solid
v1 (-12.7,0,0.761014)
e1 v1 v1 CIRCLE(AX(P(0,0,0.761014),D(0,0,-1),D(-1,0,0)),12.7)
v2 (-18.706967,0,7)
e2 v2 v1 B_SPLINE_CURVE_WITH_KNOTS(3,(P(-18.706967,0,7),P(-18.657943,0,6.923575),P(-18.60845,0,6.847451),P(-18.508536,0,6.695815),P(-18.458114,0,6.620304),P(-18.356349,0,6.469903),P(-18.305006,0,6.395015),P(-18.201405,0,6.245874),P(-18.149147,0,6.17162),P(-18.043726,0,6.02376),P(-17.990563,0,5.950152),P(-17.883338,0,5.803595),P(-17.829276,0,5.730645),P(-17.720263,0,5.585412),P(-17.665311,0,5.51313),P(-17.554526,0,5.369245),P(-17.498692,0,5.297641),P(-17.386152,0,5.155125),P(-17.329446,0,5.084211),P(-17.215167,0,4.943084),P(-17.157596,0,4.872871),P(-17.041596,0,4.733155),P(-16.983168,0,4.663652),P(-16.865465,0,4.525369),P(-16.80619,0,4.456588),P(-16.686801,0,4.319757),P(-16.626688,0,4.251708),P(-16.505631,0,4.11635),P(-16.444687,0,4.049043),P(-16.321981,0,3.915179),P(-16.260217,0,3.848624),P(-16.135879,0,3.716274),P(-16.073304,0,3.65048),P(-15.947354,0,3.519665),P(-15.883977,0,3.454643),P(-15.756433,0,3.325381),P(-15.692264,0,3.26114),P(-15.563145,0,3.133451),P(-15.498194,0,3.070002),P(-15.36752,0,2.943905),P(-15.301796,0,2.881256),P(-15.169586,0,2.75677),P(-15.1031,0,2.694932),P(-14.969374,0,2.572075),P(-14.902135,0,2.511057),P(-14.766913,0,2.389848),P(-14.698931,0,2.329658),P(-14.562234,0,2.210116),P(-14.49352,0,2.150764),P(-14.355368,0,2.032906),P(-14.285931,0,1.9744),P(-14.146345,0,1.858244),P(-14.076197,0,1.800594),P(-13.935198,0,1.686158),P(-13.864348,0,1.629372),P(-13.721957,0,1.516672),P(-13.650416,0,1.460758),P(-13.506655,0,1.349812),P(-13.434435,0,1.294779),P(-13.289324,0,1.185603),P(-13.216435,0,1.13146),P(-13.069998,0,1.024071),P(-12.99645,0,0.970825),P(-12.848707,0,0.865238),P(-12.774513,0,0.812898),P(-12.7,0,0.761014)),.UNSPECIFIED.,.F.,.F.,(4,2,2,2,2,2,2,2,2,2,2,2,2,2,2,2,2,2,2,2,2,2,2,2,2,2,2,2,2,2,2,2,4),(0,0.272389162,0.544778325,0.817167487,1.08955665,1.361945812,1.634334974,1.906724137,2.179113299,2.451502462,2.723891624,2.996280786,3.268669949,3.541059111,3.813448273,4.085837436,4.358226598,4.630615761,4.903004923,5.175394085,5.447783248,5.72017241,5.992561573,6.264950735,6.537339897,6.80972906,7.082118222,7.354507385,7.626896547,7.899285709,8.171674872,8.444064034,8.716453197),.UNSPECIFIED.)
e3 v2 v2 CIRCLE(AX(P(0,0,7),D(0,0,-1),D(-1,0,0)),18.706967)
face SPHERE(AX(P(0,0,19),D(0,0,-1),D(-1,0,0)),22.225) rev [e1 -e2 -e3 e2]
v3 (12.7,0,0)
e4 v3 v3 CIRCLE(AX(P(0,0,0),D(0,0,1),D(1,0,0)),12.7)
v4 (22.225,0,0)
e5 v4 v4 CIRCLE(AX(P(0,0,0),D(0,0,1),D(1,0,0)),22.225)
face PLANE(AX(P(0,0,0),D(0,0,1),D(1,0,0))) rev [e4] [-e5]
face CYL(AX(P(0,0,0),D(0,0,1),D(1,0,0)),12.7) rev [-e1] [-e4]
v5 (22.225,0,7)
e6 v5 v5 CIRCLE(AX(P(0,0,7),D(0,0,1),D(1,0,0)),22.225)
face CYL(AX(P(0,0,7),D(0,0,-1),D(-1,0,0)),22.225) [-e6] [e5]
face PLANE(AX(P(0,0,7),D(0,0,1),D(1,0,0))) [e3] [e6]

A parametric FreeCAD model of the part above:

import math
import FreeCAD as App
import Part
import Sketcher
Q = App.Units.Quantity

doc = App.newDocument("Part")
body = doc.addObject("PartDesign::Body", "Body")

sketch1 = body.newObject("Sketcher::SketchObject", "Sketch")
sketch1.AttachmentSupport = (doc.getObject("XY_Plane"), [""])
sketch1.MapMode = "FlatFace"
sketch1.addGeometry(Part.Circle(App.Vector(0, 0, 0), App.Vector(0, 0, 1), 22), False)
sketch1.addConstraint([
    Sketcher.Constraint("Coincident", 0, 3, -1, 1),
    Sketcher.Constraint("Diameter", 0, Q("1.75 in")),
])
pad1 = body.newObject("PartDesign::Pad", "Pad")
pad1.Profile = sketch1
pad1.Length = 7

sketch2 = body.newObject("Sketcher::SketchObject", "Sketch001")
sketch2.AttachmentSupport = (doc.getObject("XY_Plane"), [""])
sketch2.MapMode = "FlatFace"
sketch2.AttachmentOffset = App.Placement(App.Vector(0, 0, 7), App.Rotation())
sketch2.addGeometry(Part.Circle(App.Vector(0, 0, 0), App.Vector(0, 0, 1), 13), False)
sketch2.addConstraint([
    Sketcher.Constraint("Coincident", 0, 3, -1, 1),
    Sketcher.Constraint("Diameter", 0, Q("1 in")),
])
pocket1 = body.newObject("PartDesign::Pocket", "Pocket")
pocket1.Profile = sketch2
pocket1.Type = "ThroughAll"

sketch3 = body.newObject("Sketcher::SketchObject", "Sketch002")
sketch3.AttachmentSupport = (doc.getObject("XZ_Plane"), [""])
sketch3.MapMode = "FlatFace"
sketch3.addGeometry([
    Part.LineSegment(App.Vector(-19, 7, 0), App.Vector(0, 7, 0)),
    Part.LineSegment(App.Vector(0, 7, 0), App.Vector(0, 1, 0)),
    Part.LineSegment(App.Vector(0, 1, 0), App.Vector(-13, 1, 0)),
    Part.ArcOfCircle(Part.Circle(App.Vector(0, 19, 0), App.Vector(0, 0, 1), 22), math.radians(-147), math.radians(-125)),
], False)
sketch3.addConstraint([
    Sketcher.Constraint("Coincident", 0, 2, 1, 1),
    Sketcher.Constraint("Coincident", 1, 2, 2, 1),
    Sketcher.Constraint("Coincident", 2, 2, 3, 2),
    Sketcher.Constraint("Coincident", 3, 1, 0, 1),
    Sketcher.Constraint("Horizontal", 0),
    Sketcher.Constraint("Vertical", 1),
    Sketcher.Constraint("Horizontal", 2),
    Sketcher.Constraint("PointOnObject", 3, 3, -2),
    Sketcher.Constraint("PointOnObject", 0, 2, -2),
    Sketcher.Constraint("DistanceX", 2, 2, 2, 1, Q("0.5 in")),
    Sketcher.Constraint("Radius", 3, Q("0.875 in")),
    Sketcher.Constraint("DistanceY", -1, 1, 3, 3, Q("19 mm")),
    Sketcher.Constraint("DistanceY", -1, 1, 0, 2, Q("7 mm")),
])
groove = body.newObject("PartDesign::Groove", "Groove")
groove.Profile = sketch3
groove.ReferenceAxis = (sketch3, ["V_Axis"])
groove.Angle = 360

doc.recompute()
